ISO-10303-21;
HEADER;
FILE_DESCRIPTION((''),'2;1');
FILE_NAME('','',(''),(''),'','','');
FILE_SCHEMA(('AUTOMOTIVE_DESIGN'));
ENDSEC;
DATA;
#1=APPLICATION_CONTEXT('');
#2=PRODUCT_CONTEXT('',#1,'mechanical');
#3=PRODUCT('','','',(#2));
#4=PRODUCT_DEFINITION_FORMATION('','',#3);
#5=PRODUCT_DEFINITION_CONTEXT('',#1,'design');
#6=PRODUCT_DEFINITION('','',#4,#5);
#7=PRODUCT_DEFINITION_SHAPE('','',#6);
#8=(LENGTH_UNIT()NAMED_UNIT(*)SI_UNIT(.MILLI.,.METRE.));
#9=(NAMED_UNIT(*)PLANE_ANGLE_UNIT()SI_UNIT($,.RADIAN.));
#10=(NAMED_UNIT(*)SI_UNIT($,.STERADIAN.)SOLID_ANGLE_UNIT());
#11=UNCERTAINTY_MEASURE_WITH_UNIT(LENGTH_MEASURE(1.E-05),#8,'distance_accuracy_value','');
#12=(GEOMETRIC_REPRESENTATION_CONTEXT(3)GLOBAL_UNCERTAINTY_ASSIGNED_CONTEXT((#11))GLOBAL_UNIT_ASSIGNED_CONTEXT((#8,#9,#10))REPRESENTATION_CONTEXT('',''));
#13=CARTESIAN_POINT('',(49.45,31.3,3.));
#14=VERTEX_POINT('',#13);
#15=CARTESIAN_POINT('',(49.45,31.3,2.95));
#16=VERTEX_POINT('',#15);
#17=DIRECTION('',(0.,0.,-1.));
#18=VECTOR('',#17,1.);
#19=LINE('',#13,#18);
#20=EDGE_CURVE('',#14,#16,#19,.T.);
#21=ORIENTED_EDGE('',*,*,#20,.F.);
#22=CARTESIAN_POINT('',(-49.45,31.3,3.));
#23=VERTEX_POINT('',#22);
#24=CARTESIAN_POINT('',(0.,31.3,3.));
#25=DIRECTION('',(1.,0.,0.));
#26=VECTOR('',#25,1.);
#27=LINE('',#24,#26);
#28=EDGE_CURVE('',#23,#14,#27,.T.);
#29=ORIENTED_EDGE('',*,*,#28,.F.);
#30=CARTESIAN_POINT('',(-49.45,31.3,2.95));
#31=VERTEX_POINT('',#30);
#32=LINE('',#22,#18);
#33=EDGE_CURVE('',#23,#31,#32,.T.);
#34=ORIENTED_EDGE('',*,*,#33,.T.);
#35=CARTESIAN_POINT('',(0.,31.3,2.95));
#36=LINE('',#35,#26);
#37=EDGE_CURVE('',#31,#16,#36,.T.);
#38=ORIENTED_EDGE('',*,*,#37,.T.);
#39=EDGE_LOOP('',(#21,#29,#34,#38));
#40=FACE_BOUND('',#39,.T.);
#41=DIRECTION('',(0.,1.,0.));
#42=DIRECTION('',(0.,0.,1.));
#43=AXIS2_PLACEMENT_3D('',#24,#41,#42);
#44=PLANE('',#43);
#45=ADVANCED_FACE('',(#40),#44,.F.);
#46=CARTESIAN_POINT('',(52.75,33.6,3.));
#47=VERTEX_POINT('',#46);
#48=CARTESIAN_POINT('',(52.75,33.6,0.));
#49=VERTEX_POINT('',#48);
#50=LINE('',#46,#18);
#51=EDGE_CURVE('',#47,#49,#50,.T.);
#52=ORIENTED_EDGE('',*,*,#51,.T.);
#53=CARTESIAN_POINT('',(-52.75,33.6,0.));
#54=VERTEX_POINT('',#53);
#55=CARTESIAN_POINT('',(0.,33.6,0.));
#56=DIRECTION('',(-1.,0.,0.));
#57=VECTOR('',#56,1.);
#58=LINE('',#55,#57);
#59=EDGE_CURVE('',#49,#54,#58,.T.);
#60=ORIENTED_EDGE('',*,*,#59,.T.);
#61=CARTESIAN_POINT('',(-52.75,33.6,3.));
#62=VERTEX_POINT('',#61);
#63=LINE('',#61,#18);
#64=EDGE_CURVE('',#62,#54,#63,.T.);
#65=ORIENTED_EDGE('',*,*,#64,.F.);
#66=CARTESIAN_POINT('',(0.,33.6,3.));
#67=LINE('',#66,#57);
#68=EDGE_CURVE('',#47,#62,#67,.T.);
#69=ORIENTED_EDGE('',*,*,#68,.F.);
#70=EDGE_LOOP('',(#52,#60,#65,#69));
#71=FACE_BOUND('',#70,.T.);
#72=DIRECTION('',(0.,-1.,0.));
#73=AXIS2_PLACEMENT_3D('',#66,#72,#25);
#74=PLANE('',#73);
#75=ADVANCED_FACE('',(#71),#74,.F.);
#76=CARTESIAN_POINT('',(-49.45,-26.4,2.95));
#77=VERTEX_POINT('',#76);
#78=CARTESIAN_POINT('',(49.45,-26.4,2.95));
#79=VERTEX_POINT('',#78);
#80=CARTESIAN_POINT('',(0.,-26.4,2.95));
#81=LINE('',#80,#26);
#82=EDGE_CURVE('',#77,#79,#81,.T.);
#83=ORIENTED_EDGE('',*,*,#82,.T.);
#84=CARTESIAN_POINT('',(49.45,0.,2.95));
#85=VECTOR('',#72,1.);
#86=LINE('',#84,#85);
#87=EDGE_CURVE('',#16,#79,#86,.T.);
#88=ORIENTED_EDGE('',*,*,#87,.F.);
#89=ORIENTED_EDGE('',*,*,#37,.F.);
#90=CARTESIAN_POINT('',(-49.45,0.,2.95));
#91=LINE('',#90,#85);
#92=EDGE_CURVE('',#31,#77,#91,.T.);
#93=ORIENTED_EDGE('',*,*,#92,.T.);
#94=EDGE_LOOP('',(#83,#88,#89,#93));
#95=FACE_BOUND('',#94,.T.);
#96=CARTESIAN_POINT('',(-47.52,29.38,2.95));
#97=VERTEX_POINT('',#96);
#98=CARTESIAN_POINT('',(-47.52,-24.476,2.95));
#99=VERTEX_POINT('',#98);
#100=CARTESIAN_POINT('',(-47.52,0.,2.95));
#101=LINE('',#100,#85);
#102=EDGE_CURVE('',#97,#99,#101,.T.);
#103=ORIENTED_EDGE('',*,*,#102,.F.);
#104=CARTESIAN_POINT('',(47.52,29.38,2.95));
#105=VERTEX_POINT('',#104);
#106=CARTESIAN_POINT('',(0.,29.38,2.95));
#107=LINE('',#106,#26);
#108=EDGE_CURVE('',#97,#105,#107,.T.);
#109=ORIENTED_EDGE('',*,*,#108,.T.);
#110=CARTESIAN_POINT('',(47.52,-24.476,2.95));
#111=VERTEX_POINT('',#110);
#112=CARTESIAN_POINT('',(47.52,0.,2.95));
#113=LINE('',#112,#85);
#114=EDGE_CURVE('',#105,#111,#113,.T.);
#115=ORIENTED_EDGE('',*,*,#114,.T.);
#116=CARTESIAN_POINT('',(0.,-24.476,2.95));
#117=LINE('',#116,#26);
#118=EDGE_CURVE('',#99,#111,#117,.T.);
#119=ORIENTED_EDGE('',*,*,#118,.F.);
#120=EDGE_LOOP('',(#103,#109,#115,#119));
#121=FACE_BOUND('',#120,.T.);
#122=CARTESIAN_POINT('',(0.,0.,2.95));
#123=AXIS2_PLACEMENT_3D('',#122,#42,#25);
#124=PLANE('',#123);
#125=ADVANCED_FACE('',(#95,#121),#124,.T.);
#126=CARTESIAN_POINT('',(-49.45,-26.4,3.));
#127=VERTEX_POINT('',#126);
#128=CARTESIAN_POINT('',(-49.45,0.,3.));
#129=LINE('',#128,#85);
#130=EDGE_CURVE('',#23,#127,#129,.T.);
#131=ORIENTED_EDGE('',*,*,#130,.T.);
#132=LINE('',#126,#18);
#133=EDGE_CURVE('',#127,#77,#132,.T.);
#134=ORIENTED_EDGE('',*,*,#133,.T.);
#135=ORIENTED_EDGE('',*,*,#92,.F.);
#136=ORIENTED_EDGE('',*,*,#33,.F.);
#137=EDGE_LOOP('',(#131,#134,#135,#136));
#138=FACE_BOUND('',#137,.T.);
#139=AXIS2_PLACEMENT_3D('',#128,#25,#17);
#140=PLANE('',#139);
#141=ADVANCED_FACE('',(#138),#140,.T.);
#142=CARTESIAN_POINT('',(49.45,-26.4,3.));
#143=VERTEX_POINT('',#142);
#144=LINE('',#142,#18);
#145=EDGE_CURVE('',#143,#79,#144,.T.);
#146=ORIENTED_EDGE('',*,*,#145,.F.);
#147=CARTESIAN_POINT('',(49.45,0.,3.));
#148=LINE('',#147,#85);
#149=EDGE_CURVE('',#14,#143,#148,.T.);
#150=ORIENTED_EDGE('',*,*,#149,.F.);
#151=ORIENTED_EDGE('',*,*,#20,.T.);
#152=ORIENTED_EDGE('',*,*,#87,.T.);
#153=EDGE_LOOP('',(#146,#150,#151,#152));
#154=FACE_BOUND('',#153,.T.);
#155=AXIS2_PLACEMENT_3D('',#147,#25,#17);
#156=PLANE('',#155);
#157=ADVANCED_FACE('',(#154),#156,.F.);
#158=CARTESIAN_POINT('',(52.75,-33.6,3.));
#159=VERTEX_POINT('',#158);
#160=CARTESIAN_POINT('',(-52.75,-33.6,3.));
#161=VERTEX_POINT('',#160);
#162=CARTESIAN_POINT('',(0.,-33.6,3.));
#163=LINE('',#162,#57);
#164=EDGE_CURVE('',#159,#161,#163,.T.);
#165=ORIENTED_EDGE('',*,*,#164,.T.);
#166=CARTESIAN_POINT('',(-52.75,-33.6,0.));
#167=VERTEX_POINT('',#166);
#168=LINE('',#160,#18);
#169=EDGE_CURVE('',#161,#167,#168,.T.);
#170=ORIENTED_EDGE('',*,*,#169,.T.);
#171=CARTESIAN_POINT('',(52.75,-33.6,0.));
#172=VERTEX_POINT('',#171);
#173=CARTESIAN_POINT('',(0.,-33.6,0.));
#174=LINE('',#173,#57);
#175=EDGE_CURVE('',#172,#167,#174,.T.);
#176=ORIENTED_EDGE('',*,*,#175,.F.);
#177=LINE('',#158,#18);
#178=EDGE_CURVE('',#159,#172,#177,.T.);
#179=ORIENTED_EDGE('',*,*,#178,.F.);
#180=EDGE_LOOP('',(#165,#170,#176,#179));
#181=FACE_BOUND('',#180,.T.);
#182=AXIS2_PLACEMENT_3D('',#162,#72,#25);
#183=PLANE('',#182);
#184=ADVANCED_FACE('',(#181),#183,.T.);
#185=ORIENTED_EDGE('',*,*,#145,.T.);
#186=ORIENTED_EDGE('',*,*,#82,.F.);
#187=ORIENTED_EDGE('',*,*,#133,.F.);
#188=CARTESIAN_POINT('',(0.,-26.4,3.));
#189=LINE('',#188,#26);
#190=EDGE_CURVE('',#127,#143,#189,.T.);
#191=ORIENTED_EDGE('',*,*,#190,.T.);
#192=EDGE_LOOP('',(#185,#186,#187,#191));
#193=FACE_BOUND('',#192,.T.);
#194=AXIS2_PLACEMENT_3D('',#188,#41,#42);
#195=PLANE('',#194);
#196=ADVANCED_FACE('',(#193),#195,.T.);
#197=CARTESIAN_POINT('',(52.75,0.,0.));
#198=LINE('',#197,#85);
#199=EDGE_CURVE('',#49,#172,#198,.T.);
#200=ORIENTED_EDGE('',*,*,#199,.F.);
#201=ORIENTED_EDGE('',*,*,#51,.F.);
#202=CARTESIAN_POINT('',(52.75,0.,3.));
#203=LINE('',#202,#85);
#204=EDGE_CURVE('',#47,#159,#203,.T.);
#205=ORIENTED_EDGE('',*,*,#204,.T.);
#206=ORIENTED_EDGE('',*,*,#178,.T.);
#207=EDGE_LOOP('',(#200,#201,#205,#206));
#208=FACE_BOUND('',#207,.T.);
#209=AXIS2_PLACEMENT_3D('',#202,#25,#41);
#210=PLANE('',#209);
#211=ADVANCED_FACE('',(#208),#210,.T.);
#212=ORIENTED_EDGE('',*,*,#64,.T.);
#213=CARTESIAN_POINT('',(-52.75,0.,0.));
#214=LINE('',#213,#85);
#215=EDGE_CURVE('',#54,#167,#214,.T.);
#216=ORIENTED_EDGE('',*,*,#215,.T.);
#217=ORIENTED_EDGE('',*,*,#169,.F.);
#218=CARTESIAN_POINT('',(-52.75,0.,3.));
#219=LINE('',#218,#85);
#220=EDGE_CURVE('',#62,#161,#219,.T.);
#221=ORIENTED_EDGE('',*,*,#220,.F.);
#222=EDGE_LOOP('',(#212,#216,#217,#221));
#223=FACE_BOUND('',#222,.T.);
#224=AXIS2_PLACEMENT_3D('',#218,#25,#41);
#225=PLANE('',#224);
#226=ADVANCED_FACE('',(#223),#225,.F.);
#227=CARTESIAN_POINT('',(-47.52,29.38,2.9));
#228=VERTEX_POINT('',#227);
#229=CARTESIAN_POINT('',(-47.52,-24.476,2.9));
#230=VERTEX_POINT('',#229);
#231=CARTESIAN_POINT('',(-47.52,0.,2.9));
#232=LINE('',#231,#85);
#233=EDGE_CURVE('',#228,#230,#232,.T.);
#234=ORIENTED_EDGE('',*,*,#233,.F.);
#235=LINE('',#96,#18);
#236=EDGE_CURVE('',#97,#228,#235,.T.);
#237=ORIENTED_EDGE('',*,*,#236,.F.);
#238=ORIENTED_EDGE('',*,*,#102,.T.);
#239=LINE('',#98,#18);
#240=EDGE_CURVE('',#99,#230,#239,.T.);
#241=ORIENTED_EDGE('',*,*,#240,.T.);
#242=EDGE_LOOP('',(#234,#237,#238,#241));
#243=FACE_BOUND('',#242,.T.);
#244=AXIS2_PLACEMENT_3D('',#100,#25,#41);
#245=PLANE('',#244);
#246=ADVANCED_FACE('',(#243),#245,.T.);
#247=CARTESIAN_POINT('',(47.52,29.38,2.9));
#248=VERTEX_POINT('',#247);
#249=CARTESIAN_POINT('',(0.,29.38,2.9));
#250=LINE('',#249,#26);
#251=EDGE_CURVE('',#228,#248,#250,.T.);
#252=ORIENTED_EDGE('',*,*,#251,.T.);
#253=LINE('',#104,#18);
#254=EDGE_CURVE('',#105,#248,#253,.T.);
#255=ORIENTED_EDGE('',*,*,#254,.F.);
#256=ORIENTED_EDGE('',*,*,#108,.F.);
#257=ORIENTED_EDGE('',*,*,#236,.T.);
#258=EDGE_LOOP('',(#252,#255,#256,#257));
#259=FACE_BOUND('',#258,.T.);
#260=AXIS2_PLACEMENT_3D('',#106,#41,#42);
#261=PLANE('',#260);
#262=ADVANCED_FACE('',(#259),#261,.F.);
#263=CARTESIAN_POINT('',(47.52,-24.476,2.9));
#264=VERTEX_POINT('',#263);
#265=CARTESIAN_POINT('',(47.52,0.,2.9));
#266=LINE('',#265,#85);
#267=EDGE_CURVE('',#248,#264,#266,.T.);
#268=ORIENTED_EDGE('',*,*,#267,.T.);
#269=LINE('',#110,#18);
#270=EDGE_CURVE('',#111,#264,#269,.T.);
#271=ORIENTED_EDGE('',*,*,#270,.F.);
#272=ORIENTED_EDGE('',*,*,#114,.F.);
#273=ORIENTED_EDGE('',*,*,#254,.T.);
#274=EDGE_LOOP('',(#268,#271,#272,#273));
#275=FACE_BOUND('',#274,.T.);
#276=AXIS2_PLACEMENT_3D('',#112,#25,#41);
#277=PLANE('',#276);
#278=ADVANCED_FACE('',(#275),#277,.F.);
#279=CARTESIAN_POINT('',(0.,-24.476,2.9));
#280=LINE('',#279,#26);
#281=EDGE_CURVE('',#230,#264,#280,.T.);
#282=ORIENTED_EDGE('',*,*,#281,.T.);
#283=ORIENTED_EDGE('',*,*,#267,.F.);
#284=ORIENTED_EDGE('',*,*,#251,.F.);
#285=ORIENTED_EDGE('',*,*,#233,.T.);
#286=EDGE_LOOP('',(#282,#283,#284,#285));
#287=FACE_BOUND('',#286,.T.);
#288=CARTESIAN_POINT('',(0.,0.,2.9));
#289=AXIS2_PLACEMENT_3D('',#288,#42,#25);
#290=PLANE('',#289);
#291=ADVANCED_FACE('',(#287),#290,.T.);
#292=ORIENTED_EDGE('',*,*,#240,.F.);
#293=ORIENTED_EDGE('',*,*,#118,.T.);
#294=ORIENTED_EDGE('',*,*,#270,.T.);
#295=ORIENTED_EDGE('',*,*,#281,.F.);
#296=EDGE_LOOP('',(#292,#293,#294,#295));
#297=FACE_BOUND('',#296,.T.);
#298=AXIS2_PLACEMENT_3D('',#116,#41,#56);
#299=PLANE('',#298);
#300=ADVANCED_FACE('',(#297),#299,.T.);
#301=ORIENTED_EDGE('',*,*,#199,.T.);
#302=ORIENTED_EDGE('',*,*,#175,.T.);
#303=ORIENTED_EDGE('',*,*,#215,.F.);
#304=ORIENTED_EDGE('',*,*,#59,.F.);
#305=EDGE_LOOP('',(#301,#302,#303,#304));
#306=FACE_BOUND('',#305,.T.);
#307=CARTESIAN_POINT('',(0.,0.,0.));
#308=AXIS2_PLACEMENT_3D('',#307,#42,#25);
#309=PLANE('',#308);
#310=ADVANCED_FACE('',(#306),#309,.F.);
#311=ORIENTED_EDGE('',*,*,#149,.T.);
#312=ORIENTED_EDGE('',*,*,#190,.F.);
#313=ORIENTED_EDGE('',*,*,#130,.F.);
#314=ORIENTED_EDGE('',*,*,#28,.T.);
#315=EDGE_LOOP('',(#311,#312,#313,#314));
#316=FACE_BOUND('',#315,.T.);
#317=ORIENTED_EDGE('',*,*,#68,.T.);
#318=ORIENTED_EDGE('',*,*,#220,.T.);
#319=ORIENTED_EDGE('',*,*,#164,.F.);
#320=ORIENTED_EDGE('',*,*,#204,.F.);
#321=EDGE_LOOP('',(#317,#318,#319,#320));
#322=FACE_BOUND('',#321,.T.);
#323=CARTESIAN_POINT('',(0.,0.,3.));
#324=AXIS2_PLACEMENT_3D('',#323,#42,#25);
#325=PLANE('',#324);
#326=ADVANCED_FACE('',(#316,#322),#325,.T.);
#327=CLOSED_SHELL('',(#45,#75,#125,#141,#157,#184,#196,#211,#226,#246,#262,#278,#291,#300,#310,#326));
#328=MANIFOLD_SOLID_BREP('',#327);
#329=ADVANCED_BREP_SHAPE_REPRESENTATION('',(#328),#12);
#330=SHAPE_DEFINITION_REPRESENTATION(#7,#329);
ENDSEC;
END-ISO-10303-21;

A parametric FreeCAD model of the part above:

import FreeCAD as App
import Part
import Sketcher
Q = App.Units.Quantity


def add_polygon(sketch, points):
    """Adds a closed chain of lines whose ends are joined by coincident constraints."""
    first, n = sketch.GeometryCount, len(points)
    for a, b in zip(points, points[1:] + points[:1]):
        sketch.addGeometry(Part.LineSegment(App.Vector(*a, 0), App.Vector(*b, 0)), False)
    for i in range(n):
        sketch.addConstraint(Sketcher.Constraint("Coincident", first + i, 2, first + (i + 1) % n, 1))

doc = App.newDocument("Part")
params = doc.addObject("Spreadsheet::Sheet", "Params")
for row, (alias, value) in enumerate([
    ("sketch1_width", "105.5 mm"),
    ("sketch1_width2", "98.9 mm"),
    ("sketch1_height", "67.2 mm"),
    ("sketch1_height2", "57.7 mm"),
    ("pad1_length", "3 mm"),
    ("sketch2_width", "98.9 mm"),
    ("sketch2_height", "57.7 mm"),
    ("sketch2_width2", "95.04 mm"),
    ("pad2_length", "2.95 mm"),
    ("sketch3_width", "95.04 mm"),
    ("pad3_length", "2.9 mm"),
], start=1):
    params.set(f"A{row}", alias)
    params.set(f"B{row}", "=" + value)
    params.setAlias(f"B{row}", alias)

body = doc.addObject("PartDesign::Body", "Body")

# Sketch on XY plane
sketch1 = body.newObject("Sketcher::SketchObject", "Sketch")
sketch1.AttachmentSupport = (doc.getObject("XY_Plane"), [""])
sketch1.MapMode = "FlatFace"
add_polygon(sketch1, [(-53, 34), (-53, -34), (53, -34), (53, 34)])  # lines 0-3
add_polygon(sketch1, [(49, -26), (-49, -26), (-49, 31), (49, 31)])  # lines 4-7
sketch1.addConstraint([
    Sketcher.Constraint("Vertical", 0),
    Sketcher.Constraint("Horizontal", 1),
    Sketcher.Constraint("Vertical", 2),
    Sketcher.Constraint("Horizontal", 3),
    Sketcher.Constraint("Horizontal", 4),
    Sketcher.Constraint("Vertical", 5),
    Sketcher.Constraint("Horizontal", 6),
    Sketcher.Constraint("Vertical", 7),
    Sketcher.Constraint("Symmetric", 0, 2, 2, 2, -1, 1),
    Sketcher.Constraint("DistanceX", 1, 1, 1, 2, Q("105.5 mm")),
    Sketcher.Constraint("DistanceX", 4, 2, 4, 1, Q("98.9 mm")),
    Sketcher.Constraint("DistanceY", 0, 2, 0, 1, Q("67.2 mm")),
    Sketcher.Constraint("DistanceY", 5, 1, 5, 2, Q("57.7 mm")),
    Sketcher.Constraint("DistanceY", 4, 2, 3, 2, Q("60 mm")),
    Sketcher.Constraint("DistanceX", 0, 2, 4, 2, Q("3.3 mm")),
])
sketch1.setExpression("Constraints[17]", "Params.sketch1_width")
sketch1.setExpression("Constraints[18]", "Params.sketch1_width2")
sketch1.setExpression("Constraints[19]", "Params.sketch1_height")
sketch1.setExpression("Constraints[20]", "Params.sketch1_height2")
pad1 = body.newObject("PartDesign::Pad", "Pad")
pad1.Profile = sketch1
pad1.setExpression("Length", "Params.pad1_length")

# Sketch on XY plane
sketch2 = body.newObject("Sketcher::SketchObject", "Sketch001")
sketch2.AttachmentSupport = (doc.getObject("XY_Plane"), [""])
sketch2.MapMode = "FlatFace"
add_polygon(sketch2, [(-49, 31), (-49, -26), (49, -26), (49, 31)])  # lines 0-3
add_polygon(sketch2, [(48, -24), (-48, -24), (-48, 29), (48, 29)])  # lines 4-7
sketch2.addConstraint([
    Sketcher.Constraint("Vertical", 0),
    Sketcher.Constraint("Horizontal", 1),
    Sketcher.Constraint("Vertical", 2),
    Sketcher.Constraint("Horizontal", 3),
    Sketcher.Constraint("Horizontal", 4),
    Sketcher.Constraint("Vertical", 5),
    Sketcher.Constraint("Horizontal", 6),
    Sketcher.Constraint("Vertical", 7),
    Sketcher.Constraint("DistanceX", 1, 1, 1, 2, Q("98.9 mm")),
    Sketcher.Constraint("DistanceY", 0, 2, 0, 1, Q("57.7 mm")),
    Sketcher.Constraint("DistanceX", 4, 2, 4, 1, Q("95.04 mm")),
    Sketcher.Constraint("DistanceY", 0, 2, -1, 1, Q("26.4 mm")),
    Sketcher.Constraint("DistanceY", 5, 1, 5, 2, Q("53.856 mm")),
    Sketcher.Constraint("DistanceX", 0, 2, -1, 1, Q("49.45 mm")),
    Sketcher.Constraint("DistanceX", 4, 2, -1, 1, Q("47.52 mm")),
    Sketcher.Constraint("DistanceY", -1, 1, 5, 2, Q("29.38 mm")),
])
sketch2.setExpression("Constraints[16]", "Params.sketch2_width")
sketch2.setExpression("Constraints[17]", "Params.sketch2_height")
sketch2.setExpression("Constraints[18]", "Params.sketch2_width2")
pad2 = body.newObject("PartDesign::Pad", "Pad001")
pad2.Profile = sketch2
pad2.setExpression("Length", "Params.pad2_length")

# Sketch on XY plane
sketch3 = body.newObject("Sketcher::SketchObject", "Sketch002")
sketch3.AttachmentSupport = (doc.getObject("XY_Plane"), [""])
sketch3.MapMode = "FlatFace"
add_polygon(sketch3, [(-48, 29), (-48, -24), (48, -24), (48, 29)])  # lines 0-3
sketch3.addConstraint([
    Sketcher.Constraint("Vertical", 0),
    Sketcher.Constraint("Horizontal", 1),
    Sketcher.Constraint("Vertical", 2),
    Sketcher.Constraint("Horizontal", 3),
    Sketcher.Constraint("DistanceX", 1, 1, 1, 2, Q("95.04 mm")),
    Sketcher.Constraint("DistanceY", 0, 2, 0, 1, Q("53.856 mm")),
    Sketcher.Constraint("DistanceX", 0, 2, -1, 1, Q("47.52 mm")),
    Sketcher.Constraint("DistanceY", -1, 1, 2, 2, Q("29.38 mm")),
])
sketch3.setExpression("Constraints[8]", "Params.sketch3_width")
pad3 = body.newObject("PartDesign::Pad", "Pad002")
pad3.Profile = sketch3
pad3.setExpression("Length", "Params.pad3_length")

doc.recompute()
